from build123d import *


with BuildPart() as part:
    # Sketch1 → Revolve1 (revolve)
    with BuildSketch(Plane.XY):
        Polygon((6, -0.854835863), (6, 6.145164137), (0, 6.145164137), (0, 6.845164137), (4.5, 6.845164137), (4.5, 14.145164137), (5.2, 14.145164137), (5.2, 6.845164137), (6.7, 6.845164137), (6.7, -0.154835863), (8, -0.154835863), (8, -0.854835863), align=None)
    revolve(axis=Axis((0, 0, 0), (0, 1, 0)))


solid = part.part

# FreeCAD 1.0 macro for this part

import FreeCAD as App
import Part
import Sketcher
from FreeCAD import Vector


def add_polygon(sketch, points):
    """Adds a closed chain of lines whose ends are joined by coincident constraints."""
    first, n = sketch.GeometryCount, len(points)
    for a, b in zip(points, points[1:] + points[:1]):
        sketch.addGeometry(Part.LineSegment(App.Vector(*a, 0), App.Vector(*b, 0)), False)
    for i in range(n):
        sketch.addConstraint(Sketcher.Constraint("Coincident", first + i, 2, first + (i + 1) % n, 1))

doc = App.newDocument("Part")
body = doc.addObject("PartDesign::Body", "Body")

# Sketch on XY plane
sketch1 = body.newObject("Sketcher::SketchObject", "Sketch")
sketch1.AttachmentSupport = (doc.getObject("XY_Plane"), [""])
sketch1.MapMode = "FlatFace"
add_polygon(sketch1, [(6, 6.1), (6, -0.9), (8, -0.9), (8, -0.2), (6.7, -0.2), (6.7, 6.8), (5.2, 6.8), (5.2, 14.1), (4.5, 14.1), (4.5, 6.8), (0, 6.8), (0, 6.1)])  # lines 0-11
sketch1.addConstraint([
    Sketcher.Constraint("Vertical", 0),
    Sketcher.Constraint("Horizontal", 1),
    Sketcher.Constraint("Vertical", 2),
    Sketcher.Constraint("Horizontal", 3),
    Sketcher.Constraint("Vertical", 4),
    Sketcher.Constraint("Horizontal", 5),
    Sketcher.Constraint("Vertical", 6),
    Sketcher.Constraint("Horizontal", 7),
    Sketcher.Constraint("Vertical", 8),
    Sketcher.Constraint("Horizontal", 9),
    Sketcher.Constraint("Vertical", 10),
    Sketcher.Constraint("Horizontal", 11),
    Sketcher.Constraint("PointOnObject", 9, 2, -2),
    Sketcher.Constraint("Horizontal", 5, 2, 8, 2),
    Sketcher.Constraint("Equal", 7, 2),
    Sketcher.Constraint("Equal", 0, 4),
    Sketcher.Constraint("DistanceX", 1, 1, 1, 2, 2.0),
    Sketcher.Constraint("DistanceX", 11, 1, 11, 2, 6.0),
    Sketcher.Constraint("DistanceY", 0, 2, 0, 1, 7.0),
    Sketcher.Constraint("DistanceX", 3, 2, 3, 1, 1.3),
    Sketcher.Constraint("DistanceX", 5, 2, 5, 1, 1.5),
    Sketcher.Constraint("DistanceX", 7, 2, 7, 1, 0.7),
    Sketcher.Constraint("DistanceY", 6, 1, 6, 2, 7.3),
    Sketcher.Constraint("DistanceY", 0, 2, -1, 1, 0.854836),
])
revolution = body.newObject("PartDesign::Revolution", "Revolution")
revolution.Profile = sketch1
revolution.ReferenceAxis = (sketch1, ["V_Axis"])
revolution.Angle = 360

doc.recompute()
